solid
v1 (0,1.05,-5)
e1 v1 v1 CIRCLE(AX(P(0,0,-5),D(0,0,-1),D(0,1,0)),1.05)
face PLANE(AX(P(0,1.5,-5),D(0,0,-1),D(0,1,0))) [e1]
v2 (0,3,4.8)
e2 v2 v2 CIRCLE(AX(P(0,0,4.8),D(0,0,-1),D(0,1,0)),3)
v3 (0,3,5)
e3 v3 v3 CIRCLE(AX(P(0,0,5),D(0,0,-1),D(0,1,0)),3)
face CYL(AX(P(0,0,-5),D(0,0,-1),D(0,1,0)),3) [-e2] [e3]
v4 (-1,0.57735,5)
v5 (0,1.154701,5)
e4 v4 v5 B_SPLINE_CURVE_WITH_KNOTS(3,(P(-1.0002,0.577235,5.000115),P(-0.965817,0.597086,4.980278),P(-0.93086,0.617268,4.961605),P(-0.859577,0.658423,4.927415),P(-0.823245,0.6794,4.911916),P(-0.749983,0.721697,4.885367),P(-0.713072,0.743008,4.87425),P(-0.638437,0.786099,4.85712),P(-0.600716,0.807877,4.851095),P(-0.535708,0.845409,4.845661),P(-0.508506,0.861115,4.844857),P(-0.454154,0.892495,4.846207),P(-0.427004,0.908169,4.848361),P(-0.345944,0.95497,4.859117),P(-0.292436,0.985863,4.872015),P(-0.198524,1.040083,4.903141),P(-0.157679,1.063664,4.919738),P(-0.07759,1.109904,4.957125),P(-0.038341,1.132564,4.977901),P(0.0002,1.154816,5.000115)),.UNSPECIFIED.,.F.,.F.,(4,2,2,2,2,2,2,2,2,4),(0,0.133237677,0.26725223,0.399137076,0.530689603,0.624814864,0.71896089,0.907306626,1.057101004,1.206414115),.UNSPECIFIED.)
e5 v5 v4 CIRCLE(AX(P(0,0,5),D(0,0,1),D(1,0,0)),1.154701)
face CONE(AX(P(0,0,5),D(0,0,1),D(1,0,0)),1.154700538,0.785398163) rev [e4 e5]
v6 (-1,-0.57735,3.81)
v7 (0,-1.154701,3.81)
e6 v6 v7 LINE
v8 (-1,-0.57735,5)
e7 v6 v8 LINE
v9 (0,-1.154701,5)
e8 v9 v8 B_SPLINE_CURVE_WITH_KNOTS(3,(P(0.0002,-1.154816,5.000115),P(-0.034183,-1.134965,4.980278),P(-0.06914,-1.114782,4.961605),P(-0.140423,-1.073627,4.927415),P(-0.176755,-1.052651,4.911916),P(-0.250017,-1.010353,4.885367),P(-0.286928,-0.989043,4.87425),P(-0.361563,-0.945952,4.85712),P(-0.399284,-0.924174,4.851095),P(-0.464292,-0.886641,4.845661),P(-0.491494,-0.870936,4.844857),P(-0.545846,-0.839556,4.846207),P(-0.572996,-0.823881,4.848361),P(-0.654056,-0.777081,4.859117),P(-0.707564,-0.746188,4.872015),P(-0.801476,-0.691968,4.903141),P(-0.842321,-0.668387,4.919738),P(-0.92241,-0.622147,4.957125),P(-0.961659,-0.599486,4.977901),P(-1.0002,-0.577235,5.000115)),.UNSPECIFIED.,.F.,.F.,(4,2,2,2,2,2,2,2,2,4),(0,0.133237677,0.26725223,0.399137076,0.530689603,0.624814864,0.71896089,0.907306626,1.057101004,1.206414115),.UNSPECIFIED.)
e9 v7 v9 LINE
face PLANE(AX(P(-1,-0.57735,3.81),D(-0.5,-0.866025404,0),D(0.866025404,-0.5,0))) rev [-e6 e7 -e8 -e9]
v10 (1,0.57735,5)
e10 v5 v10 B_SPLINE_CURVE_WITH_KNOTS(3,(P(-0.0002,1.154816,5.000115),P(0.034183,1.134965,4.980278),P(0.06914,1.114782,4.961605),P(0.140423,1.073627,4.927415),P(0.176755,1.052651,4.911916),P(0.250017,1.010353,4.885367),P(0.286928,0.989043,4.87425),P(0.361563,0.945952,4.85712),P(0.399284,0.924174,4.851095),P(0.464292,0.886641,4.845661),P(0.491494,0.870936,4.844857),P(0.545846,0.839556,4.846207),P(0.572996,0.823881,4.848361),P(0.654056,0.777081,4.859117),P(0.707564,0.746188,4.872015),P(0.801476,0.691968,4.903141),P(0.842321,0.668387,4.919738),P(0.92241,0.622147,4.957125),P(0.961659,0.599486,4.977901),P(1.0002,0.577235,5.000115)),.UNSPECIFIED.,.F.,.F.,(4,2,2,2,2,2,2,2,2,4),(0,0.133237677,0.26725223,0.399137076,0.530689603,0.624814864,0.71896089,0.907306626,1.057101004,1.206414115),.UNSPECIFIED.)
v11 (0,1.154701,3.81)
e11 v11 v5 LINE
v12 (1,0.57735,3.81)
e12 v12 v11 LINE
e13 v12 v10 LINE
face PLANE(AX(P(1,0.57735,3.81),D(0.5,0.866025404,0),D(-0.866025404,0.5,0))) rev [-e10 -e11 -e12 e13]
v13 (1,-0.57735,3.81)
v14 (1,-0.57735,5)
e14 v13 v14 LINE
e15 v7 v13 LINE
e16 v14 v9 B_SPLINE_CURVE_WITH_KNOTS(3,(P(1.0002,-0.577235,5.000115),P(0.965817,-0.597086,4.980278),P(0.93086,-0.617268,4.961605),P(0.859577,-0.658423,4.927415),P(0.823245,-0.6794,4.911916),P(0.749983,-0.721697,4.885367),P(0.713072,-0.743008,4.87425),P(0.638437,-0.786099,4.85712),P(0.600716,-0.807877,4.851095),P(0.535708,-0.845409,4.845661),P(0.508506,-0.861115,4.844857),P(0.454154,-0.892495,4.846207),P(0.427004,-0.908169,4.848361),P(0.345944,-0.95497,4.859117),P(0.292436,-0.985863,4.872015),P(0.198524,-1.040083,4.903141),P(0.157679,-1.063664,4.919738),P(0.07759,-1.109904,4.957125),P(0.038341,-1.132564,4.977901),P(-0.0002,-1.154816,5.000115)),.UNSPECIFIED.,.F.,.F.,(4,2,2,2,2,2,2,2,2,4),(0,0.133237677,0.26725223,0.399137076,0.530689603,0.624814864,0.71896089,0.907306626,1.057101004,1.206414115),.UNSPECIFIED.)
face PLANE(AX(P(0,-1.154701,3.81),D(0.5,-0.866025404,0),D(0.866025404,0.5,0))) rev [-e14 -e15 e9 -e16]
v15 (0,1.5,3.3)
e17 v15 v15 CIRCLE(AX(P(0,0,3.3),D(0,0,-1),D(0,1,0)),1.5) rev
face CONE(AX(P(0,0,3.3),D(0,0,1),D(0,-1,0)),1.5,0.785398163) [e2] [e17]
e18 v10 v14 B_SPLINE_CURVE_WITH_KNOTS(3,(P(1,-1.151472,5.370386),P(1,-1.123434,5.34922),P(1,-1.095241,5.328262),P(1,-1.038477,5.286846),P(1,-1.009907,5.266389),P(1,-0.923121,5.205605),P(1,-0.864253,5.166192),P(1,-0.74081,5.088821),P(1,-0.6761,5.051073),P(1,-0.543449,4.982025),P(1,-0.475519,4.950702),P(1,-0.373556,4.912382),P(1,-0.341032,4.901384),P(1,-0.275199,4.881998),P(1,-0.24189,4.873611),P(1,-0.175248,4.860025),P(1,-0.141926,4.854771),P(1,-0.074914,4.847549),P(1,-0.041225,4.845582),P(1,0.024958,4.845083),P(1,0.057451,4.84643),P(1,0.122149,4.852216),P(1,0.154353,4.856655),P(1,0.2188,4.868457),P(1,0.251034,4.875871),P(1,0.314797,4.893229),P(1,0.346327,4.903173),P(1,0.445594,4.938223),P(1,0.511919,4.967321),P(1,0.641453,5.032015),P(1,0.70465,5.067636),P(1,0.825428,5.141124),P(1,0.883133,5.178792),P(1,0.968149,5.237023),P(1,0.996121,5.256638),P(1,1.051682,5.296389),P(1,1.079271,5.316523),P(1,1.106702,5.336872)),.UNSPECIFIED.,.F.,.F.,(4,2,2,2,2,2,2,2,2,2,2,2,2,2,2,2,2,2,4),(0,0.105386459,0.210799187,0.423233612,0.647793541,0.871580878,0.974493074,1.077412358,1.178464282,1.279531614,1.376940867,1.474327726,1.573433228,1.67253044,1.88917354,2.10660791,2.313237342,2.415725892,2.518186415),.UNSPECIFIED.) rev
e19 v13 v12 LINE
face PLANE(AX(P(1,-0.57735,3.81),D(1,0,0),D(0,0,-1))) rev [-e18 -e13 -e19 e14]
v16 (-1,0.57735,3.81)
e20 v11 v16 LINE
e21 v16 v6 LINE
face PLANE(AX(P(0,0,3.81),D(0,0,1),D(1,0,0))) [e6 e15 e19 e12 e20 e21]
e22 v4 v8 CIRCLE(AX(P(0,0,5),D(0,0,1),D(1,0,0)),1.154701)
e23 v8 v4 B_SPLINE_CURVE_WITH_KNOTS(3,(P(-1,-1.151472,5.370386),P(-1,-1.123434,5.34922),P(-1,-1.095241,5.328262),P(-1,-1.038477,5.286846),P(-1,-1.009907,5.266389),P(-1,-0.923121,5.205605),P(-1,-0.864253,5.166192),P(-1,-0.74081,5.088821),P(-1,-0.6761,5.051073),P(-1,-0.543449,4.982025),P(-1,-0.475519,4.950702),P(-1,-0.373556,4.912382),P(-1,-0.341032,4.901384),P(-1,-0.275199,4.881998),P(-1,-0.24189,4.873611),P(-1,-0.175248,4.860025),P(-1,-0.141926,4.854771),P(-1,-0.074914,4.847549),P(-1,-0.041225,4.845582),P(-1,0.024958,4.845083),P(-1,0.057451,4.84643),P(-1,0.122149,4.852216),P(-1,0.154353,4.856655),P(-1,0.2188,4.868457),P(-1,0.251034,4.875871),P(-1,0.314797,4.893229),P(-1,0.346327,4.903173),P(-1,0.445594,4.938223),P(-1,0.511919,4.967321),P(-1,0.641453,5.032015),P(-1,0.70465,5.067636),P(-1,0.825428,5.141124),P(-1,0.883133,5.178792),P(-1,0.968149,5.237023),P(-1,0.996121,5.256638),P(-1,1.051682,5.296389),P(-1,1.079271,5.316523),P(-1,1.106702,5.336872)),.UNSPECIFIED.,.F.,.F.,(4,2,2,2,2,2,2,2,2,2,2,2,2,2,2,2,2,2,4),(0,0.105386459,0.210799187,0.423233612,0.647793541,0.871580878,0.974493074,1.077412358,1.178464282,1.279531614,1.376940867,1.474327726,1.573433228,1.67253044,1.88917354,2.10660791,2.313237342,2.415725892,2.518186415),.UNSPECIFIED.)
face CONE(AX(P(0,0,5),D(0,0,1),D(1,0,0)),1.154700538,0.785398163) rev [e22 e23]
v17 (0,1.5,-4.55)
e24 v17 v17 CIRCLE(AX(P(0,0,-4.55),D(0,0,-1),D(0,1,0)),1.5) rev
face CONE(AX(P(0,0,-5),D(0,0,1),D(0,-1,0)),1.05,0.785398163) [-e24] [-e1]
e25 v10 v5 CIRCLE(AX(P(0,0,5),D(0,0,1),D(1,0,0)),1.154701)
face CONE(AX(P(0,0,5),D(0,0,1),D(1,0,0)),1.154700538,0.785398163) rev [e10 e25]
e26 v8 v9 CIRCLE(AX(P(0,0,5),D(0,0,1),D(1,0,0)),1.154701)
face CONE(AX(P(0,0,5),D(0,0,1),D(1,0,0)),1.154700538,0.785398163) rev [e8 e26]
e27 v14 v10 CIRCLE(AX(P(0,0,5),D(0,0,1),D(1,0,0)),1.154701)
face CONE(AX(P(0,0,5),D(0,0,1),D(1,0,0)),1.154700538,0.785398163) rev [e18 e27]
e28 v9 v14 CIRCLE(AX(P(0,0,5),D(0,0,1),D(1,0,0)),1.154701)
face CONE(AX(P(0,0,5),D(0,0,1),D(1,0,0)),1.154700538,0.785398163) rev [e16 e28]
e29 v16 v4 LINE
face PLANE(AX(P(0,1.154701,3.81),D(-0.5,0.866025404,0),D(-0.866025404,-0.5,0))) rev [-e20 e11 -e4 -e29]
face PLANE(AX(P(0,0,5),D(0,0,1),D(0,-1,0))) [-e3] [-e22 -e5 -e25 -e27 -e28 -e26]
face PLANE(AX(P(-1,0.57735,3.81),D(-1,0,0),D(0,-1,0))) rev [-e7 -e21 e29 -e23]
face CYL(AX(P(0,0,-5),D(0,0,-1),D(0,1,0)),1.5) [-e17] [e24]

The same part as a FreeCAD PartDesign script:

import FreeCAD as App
import Part
import Sketcher
from FreeCAD import Vector
Q = App.Units.Quantity


def edges_at(feature, points):
    """Names of the edges that pass closest to the given points."""
    edges = feature.Shape.Edges
    near = lambda p: min(range(len(edges)), key=lambda i: edges[i].distToShape(Part.Vertex(*p))[0])
    return sorted({f"Edge{near(p) + 1}" for p in points})


def add_polygon(sketch, points):
    """Adds a closed chain of lines whose ends are joined by coincident constraints."""
    first, n = sketch.GeometryCount, len(points)
    for a, b in zip(points, points[1:] + points[:1]):
        sketch.addGeometry(Part.LineSegment(App.Vector(*a, 0), App.Vector(*b, 0)), False)
    for i in range(n):
        sketch.addConstraint(Sketcher.Constraint("Coincident", first + i, 2, first + (i + 1) % n, 1))

doc = App.newDocument("Part")
params = doc.addObject("Spreadsheet::Sheet", "Params")
for row, (alias, value) in enumerate([
    ("sketch1_height", "10 mm"),
    ("sketch1_width", "1.5 mm"),
    ("revolution_angle", "360 deg"),
    ("chamfer_size", "0.45 mm"),
    ("sketch2_width", "3 mm"),
    ("sketch2_width2", "1.5 mm"),
    ("sketch2_height", "0.2 mm"),
    ("revolution2_angle", "360 deg"),
    ("pocket1_length", "1.19 mm"),
    ("groove_angle", "360 deg"),
], start=1):
    params.set(f"A{row}", alias)
    params.set(f"B{row}", "=" + value)
    params.setAlias(f"B{row}", alias)

body = doc.addObject("PartDesign::Body", "Body")

# Sketch on YZ plane
sketch1 = doc.addObject("Sketcher::SketchObject", "Sketch")
body.addObject(sketch1)
sketch1.AttachmentSupport = (doc.YZ_Plane, [""])
sketch1.MapMode = "FlatFace"
add_polygon(sketch1, [(1.5, 5), (0, 5), (0, -5), (1.5, -5)])  # lines 0-3
sketch1.addConstraint(Sketcher.Constraint("Horizontal", 0))
sketch1.addConstraint(Sketcher.Constraint("Vertical", 1))
sketch1.addConstraint(Sketcher.Constraint("Horizontal", 2))
sketch1.addConstraint(Sketcher.Constraint("Vertical", 3))
sketch1.addConstraint(Sketcher.Constraint("Symmetric", 0, 2, 1, 2, -1, 1))
sketch1.addConstraint(Sketcher.Constraint("DistanceY", 1, 2, 1, 1, 10.0))
sketch1.addConstraint(Sketcher.Constraint("DistanceX", 0, 2, 0, 1, 1.5))
sketch1.setExpression("Constraints[9]", "Params.sketch1_height")
sketch1.setExpression("Constraints[10]", "Params.sketch1_width")
revolution = doc.addObject("PartDesign::Revolution", "Revolution")
body.addObject(revolution)
revolution.Profile = sketch1
revolution.ReferenceAxis = (sketch1, ["V_Axis"])
revolution.setExpression("Angle", "Params.revolution_angle")
doc.recompute()

chamfer = doc.addObject("PartDesign::Chamfer", "Chamfer")
body.addObject(chamfer)
chamfer.Base = (revolution, edges_at(revolution, [(0, -1.5, -5)]))
chamfer.setExpression("Size", "Params.chamfer_size")

# Sketch on YZ plane
sketch2 = doc.addObject("Sketcher::SketchObject", "Sketch001")
body.addObject(sketch2)
sketch2.AttachmentSupport = (doc.YZ_Plane, [""])
sketch2.MapMode = "FlatFace"
add_polygon(sketch2, [(3, 4.8), (3, 5), (0, 5), (0, 3.3), (1.5, 3.3)])  # lines 0-4
sketch2.addConstraint(Sketcher.Constraint("Vertical", 0))
sketch2.addConstraint(Sketcher.Constraint("Horizontal", 1))
sketch2.addConstraint(Sketcher.Constraint("Vertical", 2))
sketch2.addConstraint(Sketcher.Constraint("Horizontal", 3))
sketch2.addConstraint(Sketcher.Constraint("PointOnObject", 1, 2, -2))
sketch2.addConstraint(Sketcher.Constraint("DistanceX", 1, 2, 1, 1, 3.0))
sketch2.addConstraint(Sketcher.Constraint("Angle", 4, Q("45 deg")))
sketch2.addConstraint(Sketcher.Constraint("DistanceX", 3, 1, 3, 2, 1.5))
sketch2.addConstraint(Sketcher.Constraint("DistanceY", 0, 1, 0, 2, 0.2))
sketch2.addConstraint(Sketcher.Constraint("DistanceY", -1, 1, 0, 2, 5.0))
sketch2.setExpression("Constraints[10]", "Params.sketch2_width")
sketch2.setExpression("Constraints[12]", "Params.sketch2_width2")
sketch2.setExpression("Constraints[13]", "Params.sketch2_height")
revolution2 = doc.addObject("PartDesign::Revolution", "Revolution001")
body.addObject(revolution2)
revolution2.Profile = sketch2
revolution2.ReferenceAxis = (sketch2, ["V_Axis"])
revolution2.setExpression("Angle", "Params.revolution2_angle")

# Sketch on XY plane
sketch3 = doc.addObject("Sketcher::SketchObject", "Sketch002")
body.addObject(sketch3)
sketch3.AttachmentSupport = (doc.XY_Plane, [""])
sketch3.MapMode = "FlatFace"
sketch3.AttachmentOffset = App.Placement(Vector(0, 0, 5), App.Rotation())
add_polygon(sketch3, [(0, 1.2), (-1, 0.6), (-1, -0.6), (0, -1.2), (1, -0.6), (1, 0.6)])  # lines 0-5
sketch3.addConstraint(Sketcher.Constraint("Vertical", 1))
sketch3.addConstraint(Sketcher.Constraint("Vertical", 4))
sketch3.addConstraint(Sketcher.Constraint("Symmetric", 0, 2, 3, 2, -1, 1))
sketch3.addConstraint(Sketcher.Constraint("Symmetric", 2, 2, 5, 2, -1, 1))
sketch3.addConstraint(Sketcher.Constraint("PointOnObject", 2, 2, -2))
sketch3.addConstraint(Sketcher.Constraint("Parallel", 2, 5))
sketch3.addConstraint(Sketcher.Constraint("Horizontal", 1, 2, 3, 2))
sketch3.addConstraint(Sketcher.Constraint("Angle", 0, Q("-150 deg")))
sketch3.addConstraint(Sketcher.Constraint("DistanceX", 0, 2, -1, 1, 1.0))
sketch3.addConstraint(Sketcher.Constraint("DistanceY", 1, 2, 1, 1, 1.154701))
pocket1 = doc.addObject("PartDesign::Pocket", "Pocket")
body.addObject(pocket1)
pocket1.Profile = sketch3
pocket1.setExpression("Length", "Params.pocket1_length")

# Sketch on YZ plane
sketch4 = doc.addObject("Sketcher::SketchObject", "Sketch003")
body.addObject(sketch4)
sketch4.AttachmentSupport = (doc.YZ_Plane, [""])
sketch4.MapMode = "FlatFace"
add_polygon(sketch4, [(0, 5), (-1.2, 5), (0, 3.8)])  # lines 0-2
sketch4.addConstraint(Sketcher.Constraint("Horizontal", 0))
sketch4.addConstraint(Sketcher.Constraint("Vertical", 2))
sketch4.addConstraint(Sketcher.Constraint("PointOnObject", 1, 2, -2))
sketch4.addConstraint(Sketcher.Constraint("Equal", 0, 2))
sketch4.addConstraint(Sketcher.Constraint("DistanceY", -1, 1, 0, 2, 5.0))
sketch4.addConstraint(Sketcher.Constraint("DistanceX", 0, 2, 0, 1, 1.154701))
groove = doc.addObject("PartDesign::Groove", "Groove")
body.addObject(groove)
groove.Profile = sketch4
groove.ReferenceAxis = (sketch4, ["V_Axis"])
groove.setExpression("Angle", "Params.groove_angle")

doc.recompute()
